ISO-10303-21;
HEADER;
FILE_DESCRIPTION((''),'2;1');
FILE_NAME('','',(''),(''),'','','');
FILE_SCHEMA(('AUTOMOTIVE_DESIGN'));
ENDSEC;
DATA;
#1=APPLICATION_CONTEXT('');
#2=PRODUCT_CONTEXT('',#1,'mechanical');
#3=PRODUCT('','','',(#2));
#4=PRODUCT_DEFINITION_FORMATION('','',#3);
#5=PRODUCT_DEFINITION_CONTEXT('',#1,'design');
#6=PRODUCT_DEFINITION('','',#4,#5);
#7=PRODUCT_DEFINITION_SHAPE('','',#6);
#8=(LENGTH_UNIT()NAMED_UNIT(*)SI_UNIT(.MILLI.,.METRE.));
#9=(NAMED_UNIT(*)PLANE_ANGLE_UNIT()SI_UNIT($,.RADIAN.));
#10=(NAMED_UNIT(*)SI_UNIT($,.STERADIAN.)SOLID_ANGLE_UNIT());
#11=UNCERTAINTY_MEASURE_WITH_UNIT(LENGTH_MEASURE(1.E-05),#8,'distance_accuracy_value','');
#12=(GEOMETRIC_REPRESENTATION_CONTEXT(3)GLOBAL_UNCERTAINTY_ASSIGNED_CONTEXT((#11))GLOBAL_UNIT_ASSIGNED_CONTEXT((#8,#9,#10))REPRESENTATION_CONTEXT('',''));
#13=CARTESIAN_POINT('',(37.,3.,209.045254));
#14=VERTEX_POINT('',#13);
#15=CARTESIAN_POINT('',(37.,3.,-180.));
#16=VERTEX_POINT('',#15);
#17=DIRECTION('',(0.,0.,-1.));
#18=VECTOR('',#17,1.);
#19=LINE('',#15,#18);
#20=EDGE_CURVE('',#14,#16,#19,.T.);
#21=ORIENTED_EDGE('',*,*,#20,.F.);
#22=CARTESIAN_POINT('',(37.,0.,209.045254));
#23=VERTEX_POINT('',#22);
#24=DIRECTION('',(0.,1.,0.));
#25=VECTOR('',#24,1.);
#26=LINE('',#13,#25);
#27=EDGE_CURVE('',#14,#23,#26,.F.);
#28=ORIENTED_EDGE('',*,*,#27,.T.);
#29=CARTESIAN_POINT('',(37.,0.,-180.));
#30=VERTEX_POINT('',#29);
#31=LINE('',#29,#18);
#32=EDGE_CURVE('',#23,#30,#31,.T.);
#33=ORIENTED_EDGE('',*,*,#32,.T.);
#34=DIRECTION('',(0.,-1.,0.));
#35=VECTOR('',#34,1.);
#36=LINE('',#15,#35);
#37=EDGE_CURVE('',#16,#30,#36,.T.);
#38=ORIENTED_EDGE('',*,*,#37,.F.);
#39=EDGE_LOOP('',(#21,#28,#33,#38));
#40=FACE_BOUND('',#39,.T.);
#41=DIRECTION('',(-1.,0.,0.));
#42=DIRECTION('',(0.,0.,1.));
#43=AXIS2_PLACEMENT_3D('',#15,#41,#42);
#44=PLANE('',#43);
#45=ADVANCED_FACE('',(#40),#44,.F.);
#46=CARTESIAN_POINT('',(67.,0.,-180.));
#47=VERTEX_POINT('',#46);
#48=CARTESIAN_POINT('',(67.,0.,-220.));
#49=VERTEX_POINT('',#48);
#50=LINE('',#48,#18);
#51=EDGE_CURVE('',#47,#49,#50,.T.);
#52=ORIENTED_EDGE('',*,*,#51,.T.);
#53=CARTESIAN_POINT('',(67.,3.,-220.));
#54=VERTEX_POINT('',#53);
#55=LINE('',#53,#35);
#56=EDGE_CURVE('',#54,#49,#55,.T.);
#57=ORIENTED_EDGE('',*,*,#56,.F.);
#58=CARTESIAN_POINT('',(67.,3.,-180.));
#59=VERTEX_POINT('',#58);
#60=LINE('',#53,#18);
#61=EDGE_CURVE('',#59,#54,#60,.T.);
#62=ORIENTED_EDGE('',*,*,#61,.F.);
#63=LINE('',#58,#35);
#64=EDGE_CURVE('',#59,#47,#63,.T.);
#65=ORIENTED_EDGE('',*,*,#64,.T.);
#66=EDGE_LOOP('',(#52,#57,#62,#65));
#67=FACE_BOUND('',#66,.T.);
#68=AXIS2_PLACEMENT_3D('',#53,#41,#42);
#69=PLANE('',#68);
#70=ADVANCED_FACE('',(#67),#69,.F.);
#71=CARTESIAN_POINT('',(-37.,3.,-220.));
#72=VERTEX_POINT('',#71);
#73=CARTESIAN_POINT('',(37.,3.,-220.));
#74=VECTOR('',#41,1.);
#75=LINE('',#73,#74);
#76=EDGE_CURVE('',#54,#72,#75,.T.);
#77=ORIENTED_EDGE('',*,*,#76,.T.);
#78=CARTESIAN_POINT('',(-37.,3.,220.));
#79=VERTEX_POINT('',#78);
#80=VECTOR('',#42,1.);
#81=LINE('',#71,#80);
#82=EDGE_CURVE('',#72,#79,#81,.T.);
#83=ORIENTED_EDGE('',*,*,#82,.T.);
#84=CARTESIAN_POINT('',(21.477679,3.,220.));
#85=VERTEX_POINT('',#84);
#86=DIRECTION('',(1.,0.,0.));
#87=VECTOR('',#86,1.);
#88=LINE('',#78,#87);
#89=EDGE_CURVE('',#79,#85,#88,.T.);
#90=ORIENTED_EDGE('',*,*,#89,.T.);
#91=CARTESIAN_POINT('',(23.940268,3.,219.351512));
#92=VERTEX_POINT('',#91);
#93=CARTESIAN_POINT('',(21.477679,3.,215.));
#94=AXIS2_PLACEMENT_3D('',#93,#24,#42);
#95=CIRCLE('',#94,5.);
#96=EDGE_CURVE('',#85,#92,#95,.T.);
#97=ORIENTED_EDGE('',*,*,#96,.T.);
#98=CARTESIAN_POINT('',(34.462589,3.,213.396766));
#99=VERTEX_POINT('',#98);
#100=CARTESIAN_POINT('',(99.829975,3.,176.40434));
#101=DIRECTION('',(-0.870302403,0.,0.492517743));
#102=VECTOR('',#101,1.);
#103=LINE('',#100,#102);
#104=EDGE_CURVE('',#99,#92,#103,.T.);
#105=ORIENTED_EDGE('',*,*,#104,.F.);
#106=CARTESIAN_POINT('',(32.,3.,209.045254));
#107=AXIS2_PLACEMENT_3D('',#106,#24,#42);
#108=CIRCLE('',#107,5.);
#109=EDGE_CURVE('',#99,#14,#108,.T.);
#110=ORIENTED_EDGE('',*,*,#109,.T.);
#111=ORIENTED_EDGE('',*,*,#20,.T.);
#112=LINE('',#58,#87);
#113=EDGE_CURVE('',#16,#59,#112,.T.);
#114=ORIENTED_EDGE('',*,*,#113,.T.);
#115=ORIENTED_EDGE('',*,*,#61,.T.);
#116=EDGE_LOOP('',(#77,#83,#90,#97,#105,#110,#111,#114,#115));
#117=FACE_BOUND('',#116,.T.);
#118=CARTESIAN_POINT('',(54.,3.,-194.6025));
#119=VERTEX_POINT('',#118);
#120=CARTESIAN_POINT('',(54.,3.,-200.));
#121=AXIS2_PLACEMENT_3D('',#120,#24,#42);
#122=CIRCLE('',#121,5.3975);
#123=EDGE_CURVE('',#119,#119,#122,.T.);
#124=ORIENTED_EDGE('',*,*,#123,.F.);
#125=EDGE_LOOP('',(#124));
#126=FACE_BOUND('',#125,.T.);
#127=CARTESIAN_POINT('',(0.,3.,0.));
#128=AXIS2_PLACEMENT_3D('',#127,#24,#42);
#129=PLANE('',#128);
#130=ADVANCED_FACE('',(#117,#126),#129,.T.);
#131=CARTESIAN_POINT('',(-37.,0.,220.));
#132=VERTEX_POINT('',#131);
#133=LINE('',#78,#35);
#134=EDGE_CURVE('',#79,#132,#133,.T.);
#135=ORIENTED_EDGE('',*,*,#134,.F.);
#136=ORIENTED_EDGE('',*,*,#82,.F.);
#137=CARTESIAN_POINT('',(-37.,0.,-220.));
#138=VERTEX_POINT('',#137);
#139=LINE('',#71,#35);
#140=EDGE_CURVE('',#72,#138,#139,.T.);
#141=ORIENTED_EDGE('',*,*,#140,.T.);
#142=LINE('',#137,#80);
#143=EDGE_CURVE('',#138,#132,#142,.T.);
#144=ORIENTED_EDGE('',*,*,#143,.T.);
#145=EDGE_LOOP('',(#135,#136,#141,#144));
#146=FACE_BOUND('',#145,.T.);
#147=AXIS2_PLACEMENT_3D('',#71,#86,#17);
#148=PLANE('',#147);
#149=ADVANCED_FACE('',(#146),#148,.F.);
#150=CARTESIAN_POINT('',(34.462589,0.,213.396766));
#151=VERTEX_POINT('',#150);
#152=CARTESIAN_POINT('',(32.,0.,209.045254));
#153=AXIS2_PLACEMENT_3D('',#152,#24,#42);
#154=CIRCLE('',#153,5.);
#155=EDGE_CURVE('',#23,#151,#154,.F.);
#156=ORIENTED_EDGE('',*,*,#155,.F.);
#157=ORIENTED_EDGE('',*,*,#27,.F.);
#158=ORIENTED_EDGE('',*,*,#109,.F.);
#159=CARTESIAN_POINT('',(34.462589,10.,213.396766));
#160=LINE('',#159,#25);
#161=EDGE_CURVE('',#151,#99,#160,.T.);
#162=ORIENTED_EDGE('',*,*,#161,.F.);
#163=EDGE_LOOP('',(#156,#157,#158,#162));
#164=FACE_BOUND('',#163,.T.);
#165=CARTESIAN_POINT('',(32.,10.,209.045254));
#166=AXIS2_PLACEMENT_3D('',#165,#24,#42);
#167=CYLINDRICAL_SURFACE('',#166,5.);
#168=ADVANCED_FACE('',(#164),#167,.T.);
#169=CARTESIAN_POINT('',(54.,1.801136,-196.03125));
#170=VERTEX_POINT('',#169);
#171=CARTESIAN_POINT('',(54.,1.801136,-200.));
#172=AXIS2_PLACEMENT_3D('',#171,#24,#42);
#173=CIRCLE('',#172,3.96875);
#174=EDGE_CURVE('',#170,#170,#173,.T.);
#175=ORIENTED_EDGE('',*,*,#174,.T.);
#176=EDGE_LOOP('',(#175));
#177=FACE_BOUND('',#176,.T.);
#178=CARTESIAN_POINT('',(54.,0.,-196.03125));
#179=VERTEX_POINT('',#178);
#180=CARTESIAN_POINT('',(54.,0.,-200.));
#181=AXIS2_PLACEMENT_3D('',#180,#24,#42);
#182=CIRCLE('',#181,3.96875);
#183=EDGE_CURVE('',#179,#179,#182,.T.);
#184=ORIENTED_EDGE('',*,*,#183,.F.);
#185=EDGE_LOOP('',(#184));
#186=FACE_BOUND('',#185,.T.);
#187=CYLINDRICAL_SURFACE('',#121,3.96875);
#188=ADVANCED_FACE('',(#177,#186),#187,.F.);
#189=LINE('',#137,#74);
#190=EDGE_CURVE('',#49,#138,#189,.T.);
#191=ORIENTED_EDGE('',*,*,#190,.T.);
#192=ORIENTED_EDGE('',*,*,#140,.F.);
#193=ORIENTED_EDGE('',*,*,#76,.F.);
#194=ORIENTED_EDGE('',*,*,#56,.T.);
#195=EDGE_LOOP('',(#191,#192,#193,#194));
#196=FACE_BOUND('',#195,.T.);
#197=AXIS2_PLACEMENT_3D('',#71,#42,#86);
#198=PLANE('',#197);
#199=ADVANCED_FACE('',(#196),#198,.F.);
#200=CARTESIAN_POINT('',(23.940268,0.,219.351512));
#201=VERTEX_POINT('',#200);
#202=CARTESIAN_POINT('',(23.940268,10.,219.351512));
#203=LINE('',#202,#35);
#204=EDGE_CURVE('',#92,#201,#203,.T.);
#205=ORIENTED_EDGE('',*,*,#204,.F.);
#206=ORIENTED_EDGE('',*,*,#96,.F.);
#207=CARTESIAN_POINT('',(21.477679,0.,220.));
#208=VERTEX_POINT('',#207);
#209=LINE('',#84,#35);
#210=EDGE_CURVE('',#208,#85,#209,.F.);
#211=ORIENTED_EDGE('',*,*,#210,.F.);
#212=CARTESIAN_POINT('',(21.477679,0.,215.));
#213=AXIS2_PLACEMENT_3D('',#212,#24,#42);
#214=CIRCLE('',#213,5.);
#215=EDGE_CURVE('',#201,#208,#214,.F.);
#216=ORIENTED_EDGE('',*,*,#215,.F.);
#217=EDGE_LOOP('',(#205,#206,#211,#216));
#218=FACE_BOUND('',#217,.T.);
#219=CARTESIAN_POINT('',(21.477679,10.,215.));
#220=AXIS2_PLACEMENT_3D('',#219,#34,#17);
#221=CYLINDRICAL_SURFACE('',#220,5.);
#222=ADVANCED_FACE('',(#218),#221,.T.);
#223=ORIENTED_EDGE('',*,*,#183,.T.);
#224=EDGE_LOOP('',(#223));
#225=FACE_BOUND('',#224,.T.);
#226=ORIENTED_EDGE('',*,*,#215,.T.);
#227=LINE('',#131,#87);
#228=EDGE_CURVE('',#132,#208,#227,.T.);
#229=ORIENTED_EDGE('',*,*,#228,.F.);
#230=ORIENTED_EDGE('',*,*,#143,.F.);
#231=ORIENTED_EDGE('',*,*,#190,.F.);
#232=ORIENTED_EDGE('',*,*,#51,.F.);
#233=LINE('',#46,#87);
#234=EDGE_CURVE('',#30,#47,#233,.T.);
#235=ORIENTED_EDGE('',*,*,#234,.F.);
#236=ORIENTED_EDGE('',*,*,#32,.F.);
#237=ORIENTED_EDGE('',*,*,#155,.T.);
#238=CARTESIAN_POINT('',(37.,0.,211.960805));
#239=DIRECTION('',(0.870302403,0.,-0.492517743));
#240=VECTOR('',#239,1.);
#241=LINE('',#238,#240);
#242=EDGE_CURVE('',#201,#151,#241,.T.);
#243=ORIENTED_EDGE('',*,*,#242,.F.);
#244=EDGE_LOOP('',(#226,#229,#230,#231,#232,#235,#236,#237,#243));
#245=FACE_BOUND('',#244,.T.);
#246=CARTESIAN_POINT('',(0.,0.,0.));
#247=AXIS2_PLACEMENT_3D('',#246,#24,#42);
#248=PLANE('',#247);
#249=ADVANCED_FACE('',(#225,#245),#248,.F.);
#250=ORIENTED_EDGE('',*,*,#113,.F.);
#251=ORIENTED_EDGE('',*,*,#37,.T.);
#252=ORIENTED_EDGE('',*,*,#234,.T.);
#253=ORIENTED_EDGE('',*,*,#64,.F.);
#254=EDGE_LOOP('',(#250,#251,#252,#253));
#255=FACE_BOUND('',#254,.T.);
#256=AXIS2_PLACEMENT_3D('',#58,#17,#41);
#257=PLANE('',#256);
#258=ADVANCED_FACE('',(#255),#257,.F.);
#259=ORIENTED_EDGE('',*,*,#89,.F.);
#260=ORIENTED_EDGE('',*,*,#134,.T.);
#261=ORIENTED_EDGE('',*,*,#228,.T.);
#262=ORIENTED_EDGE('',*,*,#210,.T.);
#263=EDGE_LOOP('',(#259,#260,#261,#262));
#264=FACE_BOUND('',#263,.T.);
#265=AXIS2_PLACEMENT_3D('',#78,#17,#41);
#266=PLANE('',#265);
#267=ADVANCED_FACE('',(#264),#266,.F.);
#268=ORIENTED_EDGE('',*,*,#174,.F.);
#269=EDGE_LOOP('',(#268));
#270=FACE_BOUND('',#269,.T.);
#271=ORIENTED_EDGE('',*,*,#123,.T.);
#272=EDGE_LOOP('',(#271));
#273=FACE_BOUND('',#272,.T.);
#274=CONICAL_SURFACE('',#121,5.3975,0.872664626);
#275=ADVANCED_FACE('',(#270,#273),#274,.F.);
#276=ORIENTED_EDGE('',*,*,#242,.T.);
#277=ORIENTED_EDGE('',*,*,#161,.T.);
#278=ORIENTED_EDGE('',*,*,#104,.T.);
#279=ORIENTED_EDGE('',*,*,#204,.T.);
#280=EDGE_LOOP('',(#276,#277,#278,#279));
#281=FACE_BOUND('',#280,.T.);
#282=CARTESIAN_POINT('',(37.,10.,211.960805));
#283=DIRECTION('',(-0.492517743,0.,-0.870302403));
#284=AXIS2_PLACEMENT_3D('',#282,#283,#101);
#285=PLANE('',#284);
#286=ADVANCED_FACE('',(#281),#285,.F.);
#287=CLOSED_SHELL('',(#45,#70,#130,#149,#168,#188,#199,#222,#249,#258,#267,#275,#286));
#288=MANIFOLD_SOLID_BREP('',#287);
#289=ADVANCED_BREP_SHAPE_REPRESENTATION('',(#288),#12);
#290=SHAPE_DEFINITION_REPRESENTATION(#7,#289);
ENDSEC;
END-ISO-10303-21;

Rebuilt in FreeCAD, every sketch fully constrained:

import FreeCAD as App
import Part
import Sketcher

V = App.Vector
Q = App.Units.Quantity


def edges_at(feature, points):
    """Names of the edges that pass closest to the given points."""
    edges = feature.Shape.Edges
    near = lambda p: min(range(len(edges)), key=lambda i: edges[i].distToShape(Part.Vertex(*p))[0])
    return sorted({f"Edge{near(p) + 1}" for p in points})


def add_polygon(sketch, points):
    """Adds a closed chain of lines whose ends are joined by coincident constraints."""
    first, n = sketch.GeometryCount, len(points)
    for a, b in zip(points, points[1:] + points[:1]):
        sketch.addGeometry(Part.LineSegment(App.Vector(*a, 0), App.Vector(*b, 0)), False)
    for i in range(n):
        sketch.addConstraint(Sketcher.Constraint("Coincident", first + i, 2, first + (i + 1) % n, 1))

doc = App.newDocument("Part")
body = doc.addObject("PartDesign::Body", "Body")

# Sketch on XZ plane
sketch1 = body.newObject("Sketcher::SketchObject", "Sketch")
sketch1.AttachmentSupport = (doc.getObject("XZ_Plane"), [""])
sketch1.MapMode = "FlatFace"
add_polygon(sketch1, [(67, -220), (-37, -220), (-37, 220), (37, 220), (37, -180), (67, -180)])  # lines 0-5
sketch1.addConstraint([
    Sketcher.Constraint("Horizontal", 0),
    Sketcher.Constraint("Vertical", 1),
    Sketcher.Constraint("Horizontal", 2),
    Sketcher.Constraint("Vertical", 3),
    Sketcher.Constraint("Horizontal", 4),
    Sketcher.Constraint("Vertical", 5),
    Sketcher.Constraint("Symmetric", 0, 2, 2, 2, -1, 1),
    Sketcher.Constraint("DistanceX", 0, 2, 0, 1, 104.0),
    Sketcher.Constraint("DistanceX", 2, 1, 2, 2, 74.0),
    Sketcher.Constraint("DistanceY", 1, 1, 1, 2, 440.0),
    Sketcher.Constraint("DistanceY", 3, 2, 3, 1, 400.0),
])
pad1 = body.newObject("PartDesign::Pad", "Pad")
pad1.Profile = sketch1
pad1.Length = 3
pad1.Reversed = True

# Sketch on YZ plane
sketch2 = body.newObject("Sketcher::SketchObject", "Sketch001")
sketch2.AttachmentSupport = (doc.getObject("YZ_Plane"), [""])
sketch2.MapMode = "FlatFace"
sketch2.AttachmentOffset = App.Placement(V(0, 0, 54), App.Rotation())
add_polygon(sketch2, [(0, -200), (3, -200), (3, -194.6), (1.8, -196), (0, -196)])  # lines 0-4
sketch2.addGeometry(Part.LineSegment(V(3, -200, 0), V(0, -200, 0)), True)  # axis
sketch2.addConstraint([
    Sketcher.Constraint("Horizontal", 0),
    Sketcher.Constraint("Vertical", 1),
    Sketcher.Constraint("Horizontal", 3),
    Sketcher.Constraint("Vertical", 4),
    Sketcher.Constraint("Horizontal", 5),
    Sketcher.Constraint("Coincident", 5, 1, 0, 2),
    Sketcher.Constraint("PointOnObject", 3, 2, -2),
    Sketcher.Constraint("PointOnObject", 5, 2, -2),
    Sketcher.Constraint("DistanceX", 0, 1, 0, 2, 3.0),
    Sketcher.Constraint("Angle", 2, Q("-130 deg")),
    Sketcher.Constraint("DistanceY", 0, 2, -1, 1, 200.0),
    Sketcher.Constraint("DistanceY", 1, 1, 1, 2, 5.3975),
    Sketcher.Constraint("Distance", 2, 1.865101),
])
groove = body.newObject("PartDesign::Groove", "Groove")
groove.Profile = sketch2
groove.ReferenceAxis = (sketch2, ["Axis0"])
groove.Angle = 360

# Sketch on XZ plane
sketch3 = body.newObject("Sketcher::SketchObject", "Sketch002")
sketch3.AttachmentSupport = (doc.getObject("XZ_Plane"), [""])
sketch3.MapMode = "FlatFace"
add_polygon(sketch3, [(37, 212), (37, 220), (23, 220)])  # lines 0-2
sketch3.addConstraint([
    Sketcher.Constraint("Vertical", 0),
    Sketcher.Constraint("Horizontal", 1),
    Sketcher.Constraint("DistanceX", -1, 1, 0, 2, 37.0),
    Sketcher.Constraint("DistanceY", -1, 1, 0, 2, 220.0),
    Sketcher.Constraint("DistanceX", 1, 2, 1, 1, 14.205641),
    Sketcher.Constraint("Distance", 2, 16.32265),
])
pocket1 = body.newObject("PartDesign::Pocket", "Pocket")
pocket1.Profile = sketch3
pocket1.Length = 10
doc.recompute()

fillet = body.newObject("PartDesign::Fillet", "Fillet")
fillet.Base = (pocket1, edges_at(pocket1, [(37, 1.5, 211.961)]))
fillet.Radius = 5
doc.recompute()

fillet2 = body.newObject("PartDesign::Fillet", "Fillet001")
fillet2.Base = (fillet, edges_at(fillet, [(22.794, 1.5, 220)]))
fillet2.Radius = 5

doc.recompute()
